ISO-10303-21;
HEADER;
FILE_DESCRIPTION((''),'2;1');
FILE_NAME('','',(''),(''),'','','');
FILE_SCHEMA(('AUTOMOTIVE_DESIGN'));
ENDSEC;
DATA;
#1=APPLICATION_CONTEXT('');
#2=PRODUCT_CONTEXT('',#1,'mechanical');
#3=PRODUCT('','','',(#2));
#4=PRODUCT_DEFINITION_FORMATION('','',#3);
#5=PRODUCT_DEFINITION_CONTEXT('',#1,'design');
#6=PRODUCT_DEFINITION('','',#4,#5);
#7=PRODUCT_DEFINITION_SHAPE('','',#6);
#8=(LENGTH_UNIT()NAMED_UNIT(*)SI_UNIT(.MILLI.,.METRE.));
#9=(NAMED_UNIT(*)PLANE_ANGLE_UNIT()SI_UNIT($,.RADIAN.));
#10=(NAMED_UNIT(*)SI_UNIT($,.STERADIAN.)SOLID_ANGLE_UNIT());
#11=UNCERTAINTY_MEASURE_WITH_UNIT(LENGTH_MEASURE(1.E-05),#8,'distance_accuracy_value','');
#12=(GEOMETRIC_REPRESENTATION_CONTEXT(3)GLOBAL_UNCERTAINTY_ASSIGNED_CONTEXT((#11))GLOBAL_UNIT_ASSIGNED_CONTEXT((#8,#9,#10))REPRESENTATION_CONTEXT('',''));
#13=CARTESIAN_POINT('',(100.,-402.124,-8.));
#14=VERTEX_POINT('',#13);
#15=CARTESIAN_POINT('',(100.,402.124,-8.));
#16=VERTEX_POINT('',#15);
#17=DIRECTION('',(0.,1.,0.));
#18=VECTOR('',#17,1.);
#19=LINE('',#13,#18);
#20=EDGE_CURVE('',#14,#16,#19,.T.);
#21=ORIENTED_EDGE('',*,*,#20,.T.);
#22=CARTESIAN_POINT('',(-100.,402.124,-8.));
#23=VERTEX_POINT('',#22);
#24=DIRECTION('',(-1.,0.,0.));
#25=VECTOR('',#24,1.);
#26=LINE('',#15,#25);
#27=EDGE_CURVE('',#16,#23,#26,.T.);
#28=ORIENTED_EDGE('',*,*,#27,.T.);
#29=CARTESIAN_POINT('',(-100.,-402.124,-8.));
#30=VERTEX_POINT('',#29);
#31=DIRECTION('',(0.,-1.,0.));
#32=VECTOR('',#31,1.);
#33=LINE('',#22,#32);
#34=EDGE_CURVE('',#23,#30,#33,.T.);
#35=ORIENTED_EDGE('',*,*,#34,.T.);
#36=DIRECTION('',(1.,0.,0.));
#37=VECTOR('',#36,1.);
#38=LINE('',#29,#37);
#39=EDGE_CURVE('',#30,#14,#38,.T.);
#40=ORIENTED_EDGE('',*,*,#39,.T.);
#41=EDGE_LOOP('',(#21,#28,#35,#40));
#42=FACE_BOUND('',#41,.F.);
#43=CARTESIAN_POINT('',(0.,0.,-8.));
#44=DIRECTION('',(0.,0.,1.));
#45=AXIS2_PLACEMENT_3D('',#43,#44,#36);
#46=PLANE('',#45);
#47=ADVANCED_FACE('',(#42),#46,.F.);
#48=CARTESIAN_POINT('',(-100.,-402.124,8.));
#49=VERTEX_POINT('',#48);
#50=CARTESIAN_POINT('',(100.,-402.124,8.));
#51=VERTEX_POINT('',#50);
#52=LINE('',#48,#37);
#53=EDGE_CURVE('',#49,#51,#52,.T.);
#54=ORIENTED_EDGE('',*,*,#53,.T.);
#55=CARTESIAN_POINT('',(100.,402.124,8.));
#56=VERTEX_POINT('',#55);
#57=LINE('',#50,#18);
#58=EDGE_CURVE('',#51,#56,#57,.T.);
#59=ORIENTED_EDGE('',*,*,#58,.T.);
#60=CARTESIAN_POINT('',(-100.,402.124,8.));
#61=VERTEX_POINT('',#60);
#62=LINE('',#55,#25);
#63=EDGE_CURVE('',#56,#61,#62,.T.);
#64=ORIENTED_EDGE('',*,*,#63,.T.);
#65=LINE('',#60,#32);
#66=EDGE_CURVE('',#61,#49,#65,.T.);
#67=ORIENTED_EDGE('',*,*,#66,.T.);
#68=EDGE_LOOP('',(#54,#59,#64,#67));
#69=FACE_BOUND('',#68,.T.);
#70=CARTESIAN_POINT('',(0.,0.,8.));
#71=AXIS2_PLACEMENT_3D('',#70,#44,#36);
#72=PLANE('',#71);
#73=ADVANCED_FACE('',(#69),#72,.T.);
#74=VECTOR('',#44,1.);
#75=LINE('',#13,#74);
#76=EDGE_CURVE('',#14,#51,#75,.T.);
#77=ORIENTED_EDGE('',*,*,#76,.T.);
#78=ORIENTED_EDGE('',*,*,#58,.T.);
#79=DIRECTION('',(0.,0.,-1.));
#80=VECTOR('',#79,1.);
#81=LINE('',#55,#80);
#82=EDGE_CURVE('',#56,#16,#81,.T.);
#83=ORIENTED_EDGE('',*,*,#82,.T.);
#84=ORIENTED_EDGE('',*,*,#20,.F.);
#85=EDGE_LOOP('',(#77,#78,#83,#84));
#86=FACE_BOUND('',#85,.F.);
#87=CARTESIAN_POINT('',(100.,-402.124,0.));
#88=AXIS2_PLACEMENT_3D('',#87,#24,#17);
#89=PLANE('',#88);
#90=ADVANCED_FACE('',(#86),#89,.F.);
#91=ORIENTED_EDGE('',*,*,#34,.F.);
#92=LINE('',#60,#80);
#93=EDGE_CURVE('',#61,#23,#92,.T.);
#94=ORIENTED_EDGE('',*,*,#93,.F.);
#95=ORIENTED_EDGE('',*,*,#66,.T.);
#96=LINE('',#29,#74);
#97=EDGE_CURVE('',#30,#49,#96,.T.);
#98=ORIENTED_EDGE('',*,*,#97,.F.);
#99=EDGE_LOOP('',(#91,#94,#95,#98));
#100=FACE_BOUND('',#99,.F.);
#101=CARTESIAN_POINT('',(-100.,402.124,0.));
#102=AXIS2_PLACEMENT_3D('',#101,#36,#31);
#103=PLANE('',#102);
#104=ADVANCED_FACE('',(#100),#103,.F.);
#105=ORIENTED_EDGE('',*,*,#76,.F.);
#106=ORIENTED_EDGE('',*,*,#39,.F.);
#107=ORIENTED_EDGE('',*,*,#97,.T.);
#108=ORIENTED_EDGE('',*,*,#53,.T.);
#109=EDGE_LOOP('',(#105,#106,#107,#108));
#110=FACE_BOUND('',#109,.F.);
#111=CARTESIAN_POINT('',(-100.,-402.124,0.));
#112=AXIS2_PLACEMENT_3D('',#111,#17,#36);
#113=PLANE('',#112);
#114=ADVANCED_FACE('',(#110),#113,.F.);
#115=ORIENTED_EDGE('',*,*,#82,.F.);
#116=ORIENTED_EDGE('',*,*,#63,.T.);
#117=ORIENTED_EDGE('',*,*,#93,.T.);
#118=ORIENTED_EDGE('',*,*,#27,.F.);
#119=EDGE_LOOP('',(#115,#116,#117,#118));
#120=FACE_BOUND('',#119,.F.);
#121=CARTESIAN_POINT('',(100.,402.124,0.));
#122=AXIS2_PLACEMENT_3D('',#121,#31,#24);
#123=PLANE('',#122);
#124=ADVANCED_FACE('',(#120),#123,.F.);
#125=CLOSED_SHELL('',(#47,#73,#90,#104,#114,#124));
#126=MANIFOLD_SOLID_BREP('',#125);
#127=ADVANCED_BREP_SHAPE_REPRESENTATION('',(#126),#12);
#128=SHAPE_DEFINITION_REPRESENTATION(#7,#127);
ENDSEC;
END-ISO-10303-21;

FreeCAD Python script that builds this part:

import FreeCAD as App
import Part
import Sketcher

V = App.Vector
Q = App.Units.Quantity


def add_polygon(sketch, points):
    """Adds a closed chain of lines whose ends are joined by coincident constraints."""
    first, n = sketch.GeometryCount, len(points)
    for a, b in zip(points, points[1:] + points[:1]):
        sketch.addGeometry(Part.LineSegment(App.Vector(*a, 0), App.Vector(*b, 0)), False)
    for i in range(n):
        sketch.addConstraint(Sketcher.Constraint("Coincident", first + i, 2, first + (i + 1) % n, 1))

doc = App.newDocument("Part")
body = doc.addObject("PartDesign::Body", "Body")

# Sketch on XY plane
sketch1 = body.newObject("Sketcher::SketchObject", "Sketch")
sketch1.AttachmentSupport = (doc.getObject("XY_Plane"), [""])
sketch1.MapMode = "FlatFace"
add_polygon(sketch1, [(-100, 402), (-100, -402), (100, -402), (100, 402)])  # lines 0-3
sketch1.addConstraint([
    Sketcher.Constraint("Vertical", 0),
    Sketcher.Constraint("Horizontal", 1),
    Sketcher.Constraint("Vertical", 2),
    Sketcher.Constraint("Horizontal", 3),
    Sketcher.Constraint("Symmetric", 0, 2, 2, 2, -1, 1),
    Sketcher.Constraint("DistanceX", 1, 1, 1, 2, Q("200 mm")),
    Sketcher.Constraint("DistanceY", 0, 2, 0, 1, Q("804.248 mm")),
])
pad1 = body.newObject("PartDesign::Pad", "Pad")
pad1.Profile = sketch1
pad1.Length = 16
pad1.Midplane = True

doc.recompute()
